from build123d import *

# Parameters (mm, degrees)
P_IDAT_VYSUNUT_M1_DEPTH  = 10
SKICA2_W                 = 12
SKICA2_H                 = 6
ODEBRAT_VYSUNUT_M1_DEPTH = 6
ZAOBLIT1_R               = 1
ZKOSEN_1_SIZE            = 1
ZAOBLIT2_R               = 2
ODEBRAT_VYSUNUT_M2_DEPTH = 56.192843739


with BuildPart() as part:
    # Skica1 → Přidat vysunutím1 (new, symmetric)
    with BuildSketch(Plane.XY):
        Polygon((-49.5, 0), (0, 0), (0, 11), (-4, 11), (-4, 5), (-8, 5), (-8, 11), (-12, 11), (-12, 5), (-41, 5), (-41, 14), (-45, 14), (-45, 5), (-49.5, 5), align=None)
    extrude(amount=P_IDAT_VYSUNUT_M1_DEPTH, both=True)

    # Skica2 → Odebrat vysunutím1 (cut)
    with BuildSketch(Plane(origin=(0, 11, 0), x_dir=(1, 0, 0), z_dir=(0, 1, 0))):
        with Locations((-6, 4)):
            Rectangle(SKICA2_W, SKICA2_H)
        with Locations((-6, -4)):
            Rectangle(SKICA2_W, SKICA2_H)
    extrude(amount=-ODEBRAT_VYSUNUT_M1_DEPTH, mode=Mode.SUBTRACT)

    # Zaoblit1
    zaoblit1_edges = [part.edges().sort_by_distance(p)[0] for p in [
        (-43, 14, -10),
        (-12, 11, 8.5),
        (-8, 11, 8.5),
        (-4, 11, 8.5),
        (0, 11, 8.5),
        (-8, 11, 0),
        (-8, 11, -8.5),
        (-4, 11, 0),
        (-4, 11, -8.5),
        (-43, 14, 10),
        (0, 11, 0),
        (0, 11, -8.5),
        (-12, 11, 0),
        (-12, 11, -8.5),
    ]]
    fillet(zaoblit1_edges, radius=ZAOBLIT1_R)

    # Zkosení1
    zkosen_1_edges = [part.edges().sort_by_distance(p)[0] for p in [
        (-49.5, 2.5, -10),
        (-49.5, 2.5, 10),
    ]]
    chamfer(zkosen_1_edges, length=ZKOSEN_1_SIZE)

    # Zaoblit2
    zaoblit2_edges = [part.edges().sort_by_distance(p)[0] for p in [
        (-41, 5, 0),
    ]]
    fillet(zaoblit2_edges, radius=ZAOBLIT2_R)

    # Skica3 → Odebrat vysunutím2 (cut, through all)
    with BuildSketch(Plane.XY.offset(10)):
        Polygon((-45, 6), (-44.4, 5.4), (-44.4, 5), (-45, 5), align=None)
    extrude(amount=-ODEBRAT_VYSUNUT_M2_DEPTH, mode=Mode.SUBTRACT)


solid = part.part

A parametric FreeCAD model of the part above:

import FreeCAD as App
import Part
import Sketcher
Q = App.Units.Quantity


def edges_at(feature, points):
    """Names of the edges that pass closest to the given points."""
    edges = feature.Shape.Edges
    near = lambda p: min(range(len(edges)), key=lambda i: edges[i].distToShape(Part.Vertex(*p))[0])
    return sorted({f"Edge{near(p) + 1}" for p in points})

doc = App.newDocument("Part")
body = doc.addObject("PartDesign::Body", "Body")

sketch1 = doc.addObject("Sketcher::SketchObject", "Sketch")
body.addObject(sketch1)
sketch1.AttachmentSupport = (doc.XY_Plane, [""])
sketch1.MapMode = "FlatFace"
sketch1.addGeometry(Part.LineSegment(App.Vector(-49.5, 0, 0), App.Vector(0, 0, 0)), False)
sketch1.addGeometry(Part.LineSegment(App.Vector(0, 0, 0), App.Vector(0, 11, 0)), False)
sketch1.addGeometry(Part.LineSegment(App.Vector(0, 11, 0), App.Vector(-4, 11, 0)), False)
sketch1.addGeometry(Part.LineSegment(App.Vector(-4, 11, 0), App.Vector(-4, 5, 0)), False)
sketch1.addGeometry(Part.LineSegment(App.Vector(-4, 5, 0), App.Vector(-8, 5, 0)), False)
sketch1.addGeometry(Part.LineSegment(App.Vector(-8, 5, 0), App.Vector(-8, 11, 0)), False)
sketch1.addGeometry(Part.LineSegment(App.Vector(-8, 11, 0), App.Vector(-12, 11, 0)), False)
sketch1.addGeometry(Part.LineSegment(App.Vector(-12, 11, 0), App.Vector(-12, 5, 0)), False)
sketch1.addGeometry(Part.LineSegment(App.Vector(-12, 5, 0), App.Vector(-41, 5, 0)), False)
sketch1.addGeometry(Part.LineSegment(App.Vector(-41, 5, 0), App.Vector(-41, 14, 0)), False)
sketch1.addGeometry(Part.LineSegment(App.Vector(-41, 14, 0), App.Vector(-45, 14, 0)), False)
sketch1.addGeometry(Part.LineSegment(App.Vector(-45, 14, 0), App.Vector(-45, 5, 0)), False)
sketch1.addGeometry(Part.LineSegment(App.Vector(-45, 5, 0), App.Vector(-49.5, 5, 0)), False)
sketch1.addGeometry(Part.LineSegment(App.Vector(-49.5, 5, 0), App.Vector(-49.5, 0, 0)), False)
sketch1.addConstraint(Sketcher.Constraint("Coincident", 0, 2, 1, 1))
sketch1.addConstraint(Sketcher.Constraint("Coincident", 1, 2, 2, 1))
sketch1.addConstraint(Sketcher.Constraint("Coincident", 2, 2, 3, 1))
sketch1.addConstraint(Sketcher.Constraint("Coincident", 3, 2, 4, 1))
sketch1.addConstraint(Sketcher.Constraint("Coincident", 4, 2, 5, 1))
sketch1.addConstraint(Sketcher.Constraint("Coincident", 5, 2, 6, 1))
sketch1.addConstraint(Sketcher.Constraint("Coincident", 6, 2, 7, 1))
sketch1.addConstraint(Sketcher.Constraint("Coincident", 7, 2, 8, 1))
sketch1.addConstraint(Sketcher.Constraint("Coincident", 8, 2, 9, 1))
sketch1.addConstraint(Sketcher.Constraint("Coincident", 9, 2, 10, 1))
sketch1.addConstraint(Sketcher.Constraint("Coincident", 10, 2, 11, 1))
sketch1.addConstraint(Sketcher.Constraint("Coincident", 11, 2, 12, 1))
sketch1.addConstraint(Sketcher.Constraint("Coincident", 12, 2, 13, 1))
sketch1.addConstraint(Sketcher.Constraint("Coincident", 13, 2, 0, 1))
sketch1.addConstraint(Sketcher.Constraint("Horizontal", 0))
sketch1.addConstraint(Sketcher.Constraint("Vertical", 1))
sketch1.addConstraint(Sketcher.Constraint("Horizontal", 2))
sketch1.addConstraint(Sketcher.Constraint("Vertical", 3))
sketch1.addConstraint(Sketcher.Constraint("Horizontal", 4))
sketch1.addConstraint(Sketcher.Constraint("Vertical", 5))
sketch1.addConstraint(Sketcher.Constraint("Horizontal", 6))
sketch1.addConstraint(Sketcher.Constraint("Vertical", 7))
sketch1.addConstraint(Sketcher.Constraint("Horizontal", 8))
sketch1.addConstraint(Sketcher.Constraint("Vertical", 9))
sketch1.addConstraint(Sketcher.Constraint("Horizontal", 10))
sketch1.addConstraint(Sketcher.Constraint("Vertical", 11))
sketch1.addConstraint(Sketcher.Constraint("Horizontal", 12))
sketch1.addConstraint(Sketcher.Constraint("Vertical", 13))
sketch1.addConstraint(Sketcher.Constraint("Coincident", 0, 2, -1, 1))
sketch1.addConstraint(Sketcher.Constraint("Horizontal", 2, 2, 5, 2))
sketch1.addConstraint(Sketcher.Constraint("Horizontal", 4, 2, 7, 2))
sketch1.addConstraint(Sketcher.Constraint("Horizontal", 8, 2, 11, 2))
sketch1.addConstraint(Sketcher.Constraint("Equal", 2, 4))
sketch1.addConstraint(Sketcher.Constraint("Equal", 4, 6))
sketch1.addConstraint(Sketcher.Constraint("Equal", 6, 10))
sketch1.addConstraint(Sketcher.Constraint("DistanceX", 2, 2, 2, 1, 4.0))
sketch1.addConstraint(Sketcher.Constraint("DistanceX", 8, 2, 8, 1, 29.0))
sketch1.addConstraint(Sketcher.Constraint("DistanceY", 1, 1, 1, 2, 11.0))
sketch1.addConstraint(Sketcher.Constraint("DistanceY", 3, 2, 3, 1, 6.0))
sketch1.addConstraint(Sketcher.Constraint("DistanceY", 9, 1, 9, 2, 9.0))
sketch1.addConstraint(Sketcher.Constraint("DistanceX", 0, 1, 0, 2, 49.5))
pad1 = doc.addObject("PartDesign::Pad", "Pad")
body.addObject(pad1)
pad1.Profile = sketch1
pad1.Length = 20
pad1.Midplane = True

sketch2 = doc.addObject("Sketcher::SketchObject", "Sketch001")
body.addObject(sketch2)
sketch2.AttachmentSupport = (doc.XZ_Plane, [""])
sketch2.MapMode = "FlatFace"
sketch2.AttachmentOffset = App.Placement(App.Vector(0, 0, -11), App.Rotation())
sketch2.addGeometry(Part.LineSegment(App.Vector(-12, -7, 0), App.Vector(-12, -1, 0)), False)
sketch2.addGeometry(Part.LineSegment(App.Vector(-12, -1, 0), App.Vector(0, -1, 0)), False)
sketch2.addGeometry(Part.LineSegment(App.Vector(0, -1, 0), App.Vector(0, -7, 0)), False)
sketch2.addGeometry(Part.LineSegment(App.Vector(0, -7, 0), App.Vector(-12, -7, 0)), False)
sketch2.addGeometry(Part.LineSegment(App.Vector(-12, 1, 0), App.Vector(-12, 7, 0)), False)
sketch2.addGeometry(Part.LineSegment(App.Vector(-12, 7, 0), App.Vector(0, 7, 0)), False)
sketch2.addGeometry(Part.LineSegment(App.Vector(0, 7, 0), App.Vector(0, 1, 0)), False)
sketch2.addGeometry(Part.LineSegment(App.Vector(0, 1, 0), App.Vector(-12, 1, 0)), False)
sketch2.addConstraint(Sketcher.Constraint("Coincident", 0, 2, 1, 1))
sketch2.addConstraint(Sketcher.Constraint("Coincident", 1, 2, 2, 1))
sketch2.addConstraint(Sketcher.Constraint("Coincident", 2, 2, 3, 1))
sketch2.addConstraint(Sketcher.Constraint("Coincident", 3, 2, 0, 1))
sketch2.addConstraint(Sketcher.Constraint("Coincident", 4, 2, 5, 1))
sketch2.addConstraint(Sketcher.Constraint("Coincident", 5, 2, 6, 1))
sketch2.addConstraint(Sketcher.Constraint("Coincident", 6, 2, 7, 1))
sketch2.addConstraint(Sketcher.Constraint("Coincident", 7, 2, 4, 1))
sketch2.addConstraint(Sketcher.Constraint("Vertical", 0))
sketch2.addConstraint(Sketcher.Constraint("Horizontal", 1))
sketch2.addConstraint(Sketcher.Constraint("Vertical", 2))
sketch2.addConstraint(Sketcher.Constraint("Horizontal", 3))
sketch2.addConstraint(Sketcher.Constraint("Vertical", 4))
sketch2.addConstraint(Sketcher.Constraint("Horizontal", 5))
sketch2.addConstraint(Sketcher.Constraint("Vertical", 6))
sketch2.addConstraint(Sketcher.Constraint("Horizontal", 7))
sketch2.addConstraint(Sketcher.Constraint("Symmetric", 2, 2, 5, 2, -1, 1))
sketch2.addConstraint(Sketcher.Constraint("Symmetric", 1, 2, 6, 2, -1))
sketch2.addConstraint(Sketcher.Constraint("Vertical", 3, 2, 4, 2))
sketch2.addConstraint(Sketcher.Constraint("DistanceX", 1, 1, 1, 2, 12.0))
sketch2.addConstraint(Sketcher.Constraint("DistanceY", 0, 1, 0, 2, 6.0))
sketch2.addConstraint(Sketcher.Constraint("DistanceY", 0, 2, -1, 1, 1.0))
pocket1 = doc.addObject("PartDesign::Pocket", "Pocket")
body.addObject(pocket1)
pocket1.Profile = sketch2
pocket1.Length = 6
pocket1.Reversed = True
doc.recompute()

fillet = doc.addObject("PartDesign::Fillet", "Fillet")
body.addObject(fillet)
fillet.Base = (pocket1, edges_at(pocket1, [
    (-43, 14, -10),
    (-12, 11, 8.5),
    (-8, 11, 8.5),
    (-4, 11, 8.5),
    (0, 11, 8.5),
    (-8, 11, 0),
    (-8, 11, -8.5),
    (-4, 11, 0),
    (-4, 11, -8.5),
    (-43, 14, 10),
    (0, 11, 0),
    (0, 11, -8.5),
    (-12, 11, 0),
    (-12, 11, -8.5),
]))
fillet.Radius = 1
doc.recompute()

chamfer = doc.addObject("PartDesign::Chamfer", "Chamfer")
body.addObject(chamfer)
chamfer.Base = (fillet, edges_at(fillet, [(-49.5, 2.5, -10), (-49.5, 2.5, 10)]))
chamfer.Size = 1
doc.recompute()

fillet2 = doc.addObject("PartDesign::Fillet", "Fillet001")
body.addObject(fillet2)
fillet2.Base = (chamfer, edges_at(chamfer, [(-41, 5, 0)]))
fillet2.Radius = 2

sketch3 = doc.addObject("Sketcher::SketchObject", "Sketch002")
body.addObject(sketch3)
sketch3.AttachmentSupport = (doc.XY_Plane, [""])
sketch3.MapMode = "FlatFace"
sketch3.AttachmentOffset = App.Placement(App.Vector(0, 0, 10), App.Rotation())
sketch3.addGeometry(Part.LineSegment(App.Vector(-44.4, 5.4, 0), App.Vector(-45, 6, 0)), False)
sketch3.addGeometry(Part.LineSegment(App.Vector(-45, 6, 0), App.Vector(-45, 5, 0)), False)
sketch3.addGeometry(Part.LineSegment(App.Vector(-45, 5, 0), App.Vector(-44.4, 5, 0)), False)
sketch3.addGeometry(Part.LineSegment(App.Vector(-44.4, 5, 0), App.Vector(-44.4, 5.4, 0)), False)
sketch3.addConstraint(Sketcher.Constraint("Coincident", 0, 2, 1, 1))
sketch3.addConstraint(Sketcher.Constraint("Coincident", 1, 2, 2, 1))
sketch3.addConstraint(Sketcher.Constraint("Coincident", 2, 2, 3, 1))
sketch3.addConstraint(Sketcher.Constraint("Coincident", 3, 2, 0, 1))
sketch3.addConstraint(Sketcher.Constraint("Vertical", 1))
sketch3.addConstraint(Sketcher.Constraint("Horizontal", 2))
sketch3.addConstraint(Sketcher.Constraint("Vertical", 3))
sketch3.addConstraint(Sketcher.Constraint("DistanceY", 1, 2, 1, 1, 1.0))
sketch3.addConstraint(Sketcher.Constraint("Angle", 0, Q("135 deg")))
sketch3.addConstraint(Sketcher.Constraint("DistanceX", 2, 1, 2, 2, 0.6))
sketch3.addConstraint(Sketcher.Constraint("DistanceX", 0, 2, -1, 1, 45.0))
sketch3.addConstraint(Sketcher.Constraint("DistanceY", -1, 1, 0, 2, 6.0))
pocket2 = doc.addObject("PartDesign::Pocket", "Pocket001")
body.addObject(pocket2)
pocket2.Profile = sketch3
pocket2.Type = "ThroughAll"

doc.recompute()
